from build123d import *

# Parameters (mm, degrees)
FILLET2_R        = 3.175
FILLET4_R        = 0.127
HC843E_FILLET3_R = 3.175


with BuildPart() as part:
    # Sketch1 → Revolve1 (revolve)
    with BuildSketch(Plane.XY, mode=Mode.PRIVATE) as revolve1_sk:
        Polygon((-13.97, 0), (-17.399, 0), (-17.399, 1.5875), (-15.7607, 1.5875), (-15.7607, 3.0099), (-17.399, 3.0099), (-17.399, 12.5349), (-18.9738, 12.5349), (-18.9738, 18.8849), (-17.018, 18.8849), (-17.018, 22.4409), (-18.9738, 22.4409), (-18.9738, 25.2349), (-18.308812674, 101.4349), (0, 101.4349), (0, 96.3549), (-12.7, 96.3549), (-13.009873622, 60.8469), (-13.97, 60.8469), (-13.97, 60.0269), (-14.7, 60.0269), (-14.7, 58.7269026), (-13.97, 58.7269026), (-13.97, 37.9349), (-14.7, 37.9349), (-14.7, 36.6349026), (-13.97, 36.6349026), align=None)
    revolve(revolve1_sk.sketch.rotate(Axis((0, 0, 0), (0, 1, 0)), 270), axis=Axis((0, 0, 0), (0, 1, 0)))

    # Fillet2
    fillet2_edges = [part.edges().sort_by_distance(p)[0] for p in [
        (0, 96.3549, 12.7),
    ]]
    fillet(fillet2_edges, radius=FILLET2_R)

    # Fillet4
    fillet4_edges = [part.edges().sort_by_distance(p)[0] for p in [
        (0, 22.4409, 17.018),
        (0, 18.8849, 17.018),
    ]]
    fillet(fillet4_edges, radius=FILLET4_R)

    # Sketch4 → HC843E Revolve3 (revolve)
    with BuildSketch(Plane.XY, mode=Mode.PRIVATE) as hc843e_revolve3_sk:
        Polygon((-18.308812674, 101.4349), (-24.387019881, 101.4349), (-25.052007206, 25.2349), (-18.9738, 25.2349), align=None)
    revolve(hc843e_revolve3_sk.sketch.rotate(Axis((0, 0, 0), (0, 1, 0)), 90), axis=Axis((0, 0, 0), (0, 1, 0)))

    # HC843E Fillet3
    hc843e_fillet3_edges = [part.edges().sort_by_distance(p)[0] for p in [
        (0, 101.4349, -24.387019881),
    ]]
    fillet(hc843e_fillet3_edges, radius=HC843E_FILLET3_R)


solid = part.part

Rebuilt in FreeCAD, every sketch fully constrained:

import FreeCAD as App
import Part
import Sketcher

V = App.Vector
Q = App.Units.Quantity


def edges_at(feature, points):
    """Names of the edges that pass closest to the given points."""
    edges = feature.Shape.Edges
    near = lambda p: min(range(len(edges)), key=lambda i: edges[i].distToShape(Part.Vertex(*p))[0])
    return sorted({f"Edge{near(p) + 1}" for p in points})

doc = App.newDocument("Part")
body = doc.addObject("PartDesign::Body", "Body")

# Sketch on XY plane
sketch1 = body.newObject("Sketcher::SketchObject", "Sketch")
sketch1.AttachmentSupport = (doc.getObject("XY_Plane"), [""])
sketch1.MapMode = "FlatFace"
sketch1.addGeometry(Part.LineSegment(V(-17.4, 0, 0), V(-14, 0, 0)), False)
sketch1.addGeometry(Part.LineSegment(V(-14, 0, 0), V(-14, 36.6, 0)), False)
sketch1.addGeometry(Part.LineSegment(V(-14, 36.6, 0), V(-14.7, 36.6, 0)), False)
sketch1.addGeometry(Part.LineSegment(V(-14.7, 36.6, 0), V(-14.7, 37.9, 0)), False)
sketch1.addGeometry(Part.LineSegment(V(-14.7, 37.9, 0), V(-14, 37.9, 0)), False)
sketch1.addGeometry(Part.LineSegment(V(-14, 37.9, 0), V(-14, 58.7, 0)), False)
sketch1.addGeometry(Part.LineSegment(V(-14, 58.7, 0), V(-14.7, 58.7, 0)), False)
sketch1.addGeometry(Part.LineSegment(V(-14.7, 58.7, 0), V(-14.7, 60, 0)), False)
sketch1.addGeometry(Part.LineSegment(V(-14.7, 60, 0), V(-14, 60, 0)), False)
sketch1.addGeometry(Part.LineSegment(V(-14, 60, 0), V(-14, 60.8, 0)), False)
sketch1.addGeometry(Part.LineSegment(V(-14, 60.8, 0), V(-13, 60.8, 0)), False)
sketch1.addGeometry(Part.LineSegment(V(-13, 60.8, 0), V(-12.7, 96.4, 0)), False)
sketch1.addGeometry(Part.LineSegment(V(-12.7, 96.4, 0), V(0, 96.4, 0)), False)
sketch1.addGeometry(Part.LineSegment(V(0, 96.4, 0), V(0, 101.4, 0)), False)
sketch1.addGeometry(Part.LineSegment(V(0, 101.4, 0), V(-18.3, 101.4, 0)), False)
sketch1.addGeometry(Part.LineSegment(V(-18.3, 101.4, 0), V(-19, 25.2, 0)), False)
sketch1.addGeometry(Part.LineSegment(V(-19, 25.2, 0), V(-19, 22.4, 0)), False)
sketch1.addGeometry(Part.LineSegment(V(-19, 22.4, 0), V(-17, 22.4, 0)), False)
sketch1.addGeometry(Part.LineSegment(V(-17, 22.4, 0), V(-17, 18.9, 0)), False)
sketch1.addGeometry(Part.LineSegment(V(-17, 18.9, 0), V(-19, 18.9, 0)), False)
sketch1.addGeometry(Part.LineSegment(V(-19, 18.9, 0), V(-19, 12.5, 0)), False)
sketch1.addGeometry(Part.LineSegment(V(-19, 12.5, 0), V(-17.4, 12.5, 0)), False)
sketch1.addGeometry(Part.LineSegment(V(-17.4, 12.5, 0), V(-17.4, 3, 0)), False)
sketch1.addGeometry(Part.LineSegment(V(-17.4, 3, 0), V(-15.8, 3, 0)), False)
sketch1.addGeometry(Part.LineSegment(V(-15.8, 3, 0), V(-15.8, 1.6, 0)), False)
sketch1.addGeometry(Part.LineSegment(V(-15.8, 1.6, 0), V(-17.4, 1.6, 0)), False)
sketch1.addGeometry(Part.LineSegment(V(-17.4, 1.6, 0), V(-17.4, 0, 0)), False)
sketch1.addConstraint(Sketcher.Constraint("Coincident", 0, 2, 1, 1))
sketch1.addConstraint(Sketcher.Constraint("Coincident", 1, 2, 2, 1))
sketch1.addConstraint(Sketcher.Constraint("Coincident", 2, 2, 3, 1))
sketch1.addConstraint(Sketcher.Constraint("Coincident", 3, 2, 4, 1))
sketch1.addConstraint(Sketcher.Constraint("Coincident", 4, 2, 5, 1))
sketch1.addConstraint(Sketcher.Constraint("Coincident", 5, 2, 6, 1))
sketch1.addConstraint(Sketcher.Constraint("Coincident", 6, 2, 7, 1))
sketch1.addConstraint(Sketcher.Constraint("Coincident", 7, 2, 8, 1))
sketch1.addConstraint(Sketcher.Constraint("Coincident", 8, 2, 9, 1))
sketch1.addConstraint(Sketcher.Constraint("Coincident", 9, 2, 10, 1))
sketch1.addConstraint(Sketcher.Constraint("Coincident", 10, 2, 11, 1))
sketch1.addConstraint(Sketcher.Constraint("Coincident", 11, 2, 12, 1))
sketch1.addConstraint(Sketcher.Constraint("Coincident", 12, 2, 13, 1))
sketch1.addConstraint(Sketcher.Constraint("Coincident", 13, 2, 14, 1))
sketch1.addConstraint(Sketcher.Constraint("Coincident", 14, 2, 15, 1))
sketch1.addConstraint(Sketcher.Constraint("Coincident", 15, 2, 16, 1))
sketch1.addConstraint(Sketcher.Constraint("Coincident", 16, 2, 17, 1))
sketch1.addConstraint(Sketcher.Constraint("Coincident", 17, 2, 18, 1))
sketch1.addConstraint(Sketcher.Constraint("Coincident", 18, 2, 19, 1))
sketch1.addConstraint(Sketcher.Constraint("Coincident", 19, 2, 20, 1))
sketch1.addConstraint(Sketcher.Constraint("Coincident", 20, 2, 21, 1))
sketch1.addConstraint(Sketcher.Constraint("Coincident", 21, 2, 22, 1))
sketch1.addConstraint(Sketcher.Constraint("Coincident", 22, 2, 23, 1))
sketch1.addConstraint(Sketcher.Constraint("Coincident", 23, 2, 24, 1))
sketch1.addConstraint(Sketcher.Constraint("Coincident", 24, 2, 25, 1))
sketch1.addConstraint(Sketcher.Constraint("Coincident", 25, 2, 26, 1))
sketch1.addConstraint(Sketcher.Constraint("Coincident", 26, 2, 0, 1))
sketch1.addConstraint(Sketcher.Constraint("Horizontal", 0))
sketch1.addConstraint(Sketcher.Constraint("Vertical", 1))
sketch1.addConstraint(Sketcher.Constraint("Horizontal", 2))
sketch1.addConstraint(Sketcher.Constraint("Vertical", 3))
sketch1.addConstraint(Sketcher.Constraint("Horizontal", 4))
sketch1.addConstraint(Sketcher.Constraint("Vertical", 5))
sketch1.addConstraint(Sketcher.Constraint("Horizontal", 6))
sketch1.addConstraint(Sketcher.Constraint("Vertical", 7))
sketch1.addConstraint(Sketcher.Constraint("Horizontal", 8))
sketch1.addConstraint(Sketcher.Constraint("Vertical", 9))
sketch1.addConstraint(Sketcher.Constraint("Horizontal", 10))
sketch1.addConstraint(Sketcher.Constraint("Horizontal", 12))
sketch1.addConstraint(Sketcher.Constraint("Vertical", 13))
sketch1.addConstraint(Sketcher.Constraint("Horizontal", 14))
sketch1.addConstraint(Sketcher.Constraint("Vertical", 16))
sketch1.addConstraint(Sketcher.Constraint("Horizontal", 17))
sketch1.addConstraint(Sketcher.Constraint("Vertical", 18))
sketch1.addConstraint(Sketcher.Constraint("Horizontal", 19))
sketch1.addConstraint(Sketcher.Constraint("Vertical", 20))
sketch1.addConstraint(Sketcher.Constraint("Horizontal", 21))
sketch1.addConstraint(Sketcher.Constraint("Vertical", 22))
sketch1.addConstraint(Sketcher.Constraint("Horizontal", 23))
sketch1.addConstraint(Sketcher.Constraint("Vertical", 24))
sketch1.addConstraint(Sketcher.Constraint("Horizontal", 25))
sketch1.addConstraint(Sketcher.Constraint("Vertical", 26))
sketch1.addConstraint(Sketcher.Constraint("PointOnObject", 0, 2, -1))
sketch1.addConstraint(Sketcher.Constraint("PointOnObject", 12, 2, -2))
sketch1.addConstraint(Sketcher.Constraint("Parallel", 11, 15))
sketch1.addConstraint(Sketcher.Constraint("Vertical", 1, 2, 4, 2))
sketch1.addConstraint(Sketcher.Constraint("Vertical", 3, 2, 6, 2))
sketch1.addConstraint(Sketcher.Constraint("Vertical", 5, 2, 8, 2))
sketch1.addConstraint(Sketcher.Constraint("Vertical", 16, 2, 19, 2))
sketch1.addConstraint(Sketcher.Constraint("Vertical", 22, 2, 25, 2))
sketch1.addConstraint(Sketcher.Constraint("Equal", 3, 7))
sketch1.addConstraint(Sketcher.Constraint("DistanceX", 12, 1, 12, 2, Q("0.5 in")))
sketch1.addConstraint(Sketcher.Constraint("DistanceY", 13, 1, 13, 2, Q("0.2 in")))
sketch1.addConstraint(Sketcher.Constraint("DistanceY", 16, 2, 16, 1, Q("0.11 in")))
sketch1.addConstraint(Sketcher.Constraint("DistanceY", 18, 2, 18, 1, Q("0.14 in")))
sketch1.addConstraint(Sketcher.Constraint("DistanceY", 20, 2, 20, 1, Q("0.25 in")))
sketch1.addConstraint(Sketcher.Constraint("Angle", 11, Q("89.5 deg")))
sketch1.addConstraint(Sketcher.Constraint("DistanceY", 15, 2, 3, 2, Q("0.5 in")))
sketch1.addConstraint(Sketcher.Constraint("DistanceX", 0, 1, 0, 2, Q("0.135 in")))
sketch1.addConstraint(Sketcher.Constraint("DistanceX", 17, 1, 17, 2, Q("0.077 in")))
sketch1.addConstraint(Sketcher.Constraint("DistanceX", 21, 1, 21, 2, Q("0.062 in")))
sketch1.addConstraint(Sketcher.Constraint("DistanceY", 22, 2, 22, 1, Q("0.375 in")))
sketch1.addConstraint(Sketcher.Constraint("DistanceY", 24, 2, 24, 1, Q("0.056 in")))
sketch1.addConstraint(Sketcher.Constraint("DistanceY", 26, 2, 26, 1, Q("0.0625 in")))
sketch1.addConstraint(Sketcher.Constraint("DistanceX", 0, 2, -1, 1, Q("0.55 in")))
sketch1.addConstraint(Sketcher.Constraint("DistanceX", 23, 1, 23, 2, Q("0.0645 in")))
sketch1.addConstraint(Sketcher.Constraint("DistanceX", 2, 2, 2, 1, 0.73))
sketch1.addConstraint(Sketcher.Constraint("DistanceY", 9, 1, 9, 2, 0.82))
sketch1.addConstraint(Sketcher.Constraint("DistanceY", -1, 1, 11, 2, Q("3.7935 in")))
sketch1.addConstraint(Sketcher.Constraint("DistanceY", -1, 1, 7, 2, 60.0269))
sketch1.addConstraint(Sketcher.Constraint("DistanceY", 1, 1, 1, 2, 36.634903))
revolution = body.newObject("PartDesign::Revolution", "Revolution")
revolution.Profile = sketch1
revolution.ReferenceAxis = (sketch1, ["V_Axis"])
revolution.Angle = 360
doc.recompute()

fillet = body.newObject("PartDesign::Fillet", "Fillet")
fillet.Base = (revolution, edges_at(revolution, [(0, 96.355, 12.7)]))
fillet.Radius = Q("0.125 in")
doc.recompute()

fillet2 = body.newObject("PartDesign::Fillet", "Fillet001")
fillet2.Base = (fillet, edges_at(fillet, [(0, 22.441, 17.018), (0, 18.885, 17.018)]))
fillet2.Radius = Q("0.005 in")

# Sketch on XY plane
sketch2 = body.newObject("Sketcher::SketchObject", "Sketch001")
sketch2.AttachmentSupport = (doc.getObject("XY_Plane"), [""])
sketch2.MapMode = "FlatFace"
sketch2.addGeometry(Part.LineSegment(V(-18, 101, 0), V(-24, 101, 0)), False)
sketch2.addGeometry(Part.LineSegment(V(-24, 101, 0), V(-25, 25, 0)), False)
sketch2.addGeometry(Part.LineSegment(V(-25, 25, 0), V(-19, 25, 0)), False)
sketch2.addGeometry(Part.LineSegment(V(-19, 25, 0), V(-18, 101, 0)), False)
sketch2.addConstraint(Sketcher.Constraint("Coincident", 0, 2, 1, 1))
sketch2.addConstraint(Sketcher.Constraint("Coincident", 1, 2, 2, 1))
sketch2.addConstraint(Sketcher.Constraint("Coincident", 2, 2, 3, 1))
sketch2.addConstraint(Sketcher.Constraint("Coincident", 3, 2, 0, 1))
sketch2.addConstraint(Sketcher.Constraint("Horizontal", 0))
sketch2.addConstraint(Sketcher.Constraint("Horizontal", 2))
sketch2.addConstraint(Sketcher.Constraint("Parallel", 1, 3))
sketch2.addConstraint(Sketcher.Constraint("DistanceY", 1, 2, 0, 2, Q("3 in")))
sketch2.addConstraint(Sketcher.Constraint("Angle", 1, Q("-90.5 deg")))
sketch2.addConstraint(Sketcher.Constraint("DistanceX", 2, 2, -1, 1, Q("0.747 in")))
sketch2.addConstraint(Sketcher.Constraint("DistanceY", -1, 1, 0, 2, Q("3.9935 in")))
sketch2.addConstraint(Sketcher.Constraint("DistanceX", 0, 2, 0, 1, 6.078207))
revolution2 = body.newObject("PartDesign::Revolution", "Revolution001")
revolution2.Profile = sketch2
revolution2.ReferenceAxis = (sketch2, ["V_Axis"])
revolution2.Angle = 360
doc.recompute()

fillet3 = body.newObject("PartDesign::Fillet", "Fillet002")
fillet3.Base = (revolution2, edges_at(revolution2, [(0, 101.435, -24.387)]))
fillet3.Radius = Q("0.125 in")

doc.recompute()
